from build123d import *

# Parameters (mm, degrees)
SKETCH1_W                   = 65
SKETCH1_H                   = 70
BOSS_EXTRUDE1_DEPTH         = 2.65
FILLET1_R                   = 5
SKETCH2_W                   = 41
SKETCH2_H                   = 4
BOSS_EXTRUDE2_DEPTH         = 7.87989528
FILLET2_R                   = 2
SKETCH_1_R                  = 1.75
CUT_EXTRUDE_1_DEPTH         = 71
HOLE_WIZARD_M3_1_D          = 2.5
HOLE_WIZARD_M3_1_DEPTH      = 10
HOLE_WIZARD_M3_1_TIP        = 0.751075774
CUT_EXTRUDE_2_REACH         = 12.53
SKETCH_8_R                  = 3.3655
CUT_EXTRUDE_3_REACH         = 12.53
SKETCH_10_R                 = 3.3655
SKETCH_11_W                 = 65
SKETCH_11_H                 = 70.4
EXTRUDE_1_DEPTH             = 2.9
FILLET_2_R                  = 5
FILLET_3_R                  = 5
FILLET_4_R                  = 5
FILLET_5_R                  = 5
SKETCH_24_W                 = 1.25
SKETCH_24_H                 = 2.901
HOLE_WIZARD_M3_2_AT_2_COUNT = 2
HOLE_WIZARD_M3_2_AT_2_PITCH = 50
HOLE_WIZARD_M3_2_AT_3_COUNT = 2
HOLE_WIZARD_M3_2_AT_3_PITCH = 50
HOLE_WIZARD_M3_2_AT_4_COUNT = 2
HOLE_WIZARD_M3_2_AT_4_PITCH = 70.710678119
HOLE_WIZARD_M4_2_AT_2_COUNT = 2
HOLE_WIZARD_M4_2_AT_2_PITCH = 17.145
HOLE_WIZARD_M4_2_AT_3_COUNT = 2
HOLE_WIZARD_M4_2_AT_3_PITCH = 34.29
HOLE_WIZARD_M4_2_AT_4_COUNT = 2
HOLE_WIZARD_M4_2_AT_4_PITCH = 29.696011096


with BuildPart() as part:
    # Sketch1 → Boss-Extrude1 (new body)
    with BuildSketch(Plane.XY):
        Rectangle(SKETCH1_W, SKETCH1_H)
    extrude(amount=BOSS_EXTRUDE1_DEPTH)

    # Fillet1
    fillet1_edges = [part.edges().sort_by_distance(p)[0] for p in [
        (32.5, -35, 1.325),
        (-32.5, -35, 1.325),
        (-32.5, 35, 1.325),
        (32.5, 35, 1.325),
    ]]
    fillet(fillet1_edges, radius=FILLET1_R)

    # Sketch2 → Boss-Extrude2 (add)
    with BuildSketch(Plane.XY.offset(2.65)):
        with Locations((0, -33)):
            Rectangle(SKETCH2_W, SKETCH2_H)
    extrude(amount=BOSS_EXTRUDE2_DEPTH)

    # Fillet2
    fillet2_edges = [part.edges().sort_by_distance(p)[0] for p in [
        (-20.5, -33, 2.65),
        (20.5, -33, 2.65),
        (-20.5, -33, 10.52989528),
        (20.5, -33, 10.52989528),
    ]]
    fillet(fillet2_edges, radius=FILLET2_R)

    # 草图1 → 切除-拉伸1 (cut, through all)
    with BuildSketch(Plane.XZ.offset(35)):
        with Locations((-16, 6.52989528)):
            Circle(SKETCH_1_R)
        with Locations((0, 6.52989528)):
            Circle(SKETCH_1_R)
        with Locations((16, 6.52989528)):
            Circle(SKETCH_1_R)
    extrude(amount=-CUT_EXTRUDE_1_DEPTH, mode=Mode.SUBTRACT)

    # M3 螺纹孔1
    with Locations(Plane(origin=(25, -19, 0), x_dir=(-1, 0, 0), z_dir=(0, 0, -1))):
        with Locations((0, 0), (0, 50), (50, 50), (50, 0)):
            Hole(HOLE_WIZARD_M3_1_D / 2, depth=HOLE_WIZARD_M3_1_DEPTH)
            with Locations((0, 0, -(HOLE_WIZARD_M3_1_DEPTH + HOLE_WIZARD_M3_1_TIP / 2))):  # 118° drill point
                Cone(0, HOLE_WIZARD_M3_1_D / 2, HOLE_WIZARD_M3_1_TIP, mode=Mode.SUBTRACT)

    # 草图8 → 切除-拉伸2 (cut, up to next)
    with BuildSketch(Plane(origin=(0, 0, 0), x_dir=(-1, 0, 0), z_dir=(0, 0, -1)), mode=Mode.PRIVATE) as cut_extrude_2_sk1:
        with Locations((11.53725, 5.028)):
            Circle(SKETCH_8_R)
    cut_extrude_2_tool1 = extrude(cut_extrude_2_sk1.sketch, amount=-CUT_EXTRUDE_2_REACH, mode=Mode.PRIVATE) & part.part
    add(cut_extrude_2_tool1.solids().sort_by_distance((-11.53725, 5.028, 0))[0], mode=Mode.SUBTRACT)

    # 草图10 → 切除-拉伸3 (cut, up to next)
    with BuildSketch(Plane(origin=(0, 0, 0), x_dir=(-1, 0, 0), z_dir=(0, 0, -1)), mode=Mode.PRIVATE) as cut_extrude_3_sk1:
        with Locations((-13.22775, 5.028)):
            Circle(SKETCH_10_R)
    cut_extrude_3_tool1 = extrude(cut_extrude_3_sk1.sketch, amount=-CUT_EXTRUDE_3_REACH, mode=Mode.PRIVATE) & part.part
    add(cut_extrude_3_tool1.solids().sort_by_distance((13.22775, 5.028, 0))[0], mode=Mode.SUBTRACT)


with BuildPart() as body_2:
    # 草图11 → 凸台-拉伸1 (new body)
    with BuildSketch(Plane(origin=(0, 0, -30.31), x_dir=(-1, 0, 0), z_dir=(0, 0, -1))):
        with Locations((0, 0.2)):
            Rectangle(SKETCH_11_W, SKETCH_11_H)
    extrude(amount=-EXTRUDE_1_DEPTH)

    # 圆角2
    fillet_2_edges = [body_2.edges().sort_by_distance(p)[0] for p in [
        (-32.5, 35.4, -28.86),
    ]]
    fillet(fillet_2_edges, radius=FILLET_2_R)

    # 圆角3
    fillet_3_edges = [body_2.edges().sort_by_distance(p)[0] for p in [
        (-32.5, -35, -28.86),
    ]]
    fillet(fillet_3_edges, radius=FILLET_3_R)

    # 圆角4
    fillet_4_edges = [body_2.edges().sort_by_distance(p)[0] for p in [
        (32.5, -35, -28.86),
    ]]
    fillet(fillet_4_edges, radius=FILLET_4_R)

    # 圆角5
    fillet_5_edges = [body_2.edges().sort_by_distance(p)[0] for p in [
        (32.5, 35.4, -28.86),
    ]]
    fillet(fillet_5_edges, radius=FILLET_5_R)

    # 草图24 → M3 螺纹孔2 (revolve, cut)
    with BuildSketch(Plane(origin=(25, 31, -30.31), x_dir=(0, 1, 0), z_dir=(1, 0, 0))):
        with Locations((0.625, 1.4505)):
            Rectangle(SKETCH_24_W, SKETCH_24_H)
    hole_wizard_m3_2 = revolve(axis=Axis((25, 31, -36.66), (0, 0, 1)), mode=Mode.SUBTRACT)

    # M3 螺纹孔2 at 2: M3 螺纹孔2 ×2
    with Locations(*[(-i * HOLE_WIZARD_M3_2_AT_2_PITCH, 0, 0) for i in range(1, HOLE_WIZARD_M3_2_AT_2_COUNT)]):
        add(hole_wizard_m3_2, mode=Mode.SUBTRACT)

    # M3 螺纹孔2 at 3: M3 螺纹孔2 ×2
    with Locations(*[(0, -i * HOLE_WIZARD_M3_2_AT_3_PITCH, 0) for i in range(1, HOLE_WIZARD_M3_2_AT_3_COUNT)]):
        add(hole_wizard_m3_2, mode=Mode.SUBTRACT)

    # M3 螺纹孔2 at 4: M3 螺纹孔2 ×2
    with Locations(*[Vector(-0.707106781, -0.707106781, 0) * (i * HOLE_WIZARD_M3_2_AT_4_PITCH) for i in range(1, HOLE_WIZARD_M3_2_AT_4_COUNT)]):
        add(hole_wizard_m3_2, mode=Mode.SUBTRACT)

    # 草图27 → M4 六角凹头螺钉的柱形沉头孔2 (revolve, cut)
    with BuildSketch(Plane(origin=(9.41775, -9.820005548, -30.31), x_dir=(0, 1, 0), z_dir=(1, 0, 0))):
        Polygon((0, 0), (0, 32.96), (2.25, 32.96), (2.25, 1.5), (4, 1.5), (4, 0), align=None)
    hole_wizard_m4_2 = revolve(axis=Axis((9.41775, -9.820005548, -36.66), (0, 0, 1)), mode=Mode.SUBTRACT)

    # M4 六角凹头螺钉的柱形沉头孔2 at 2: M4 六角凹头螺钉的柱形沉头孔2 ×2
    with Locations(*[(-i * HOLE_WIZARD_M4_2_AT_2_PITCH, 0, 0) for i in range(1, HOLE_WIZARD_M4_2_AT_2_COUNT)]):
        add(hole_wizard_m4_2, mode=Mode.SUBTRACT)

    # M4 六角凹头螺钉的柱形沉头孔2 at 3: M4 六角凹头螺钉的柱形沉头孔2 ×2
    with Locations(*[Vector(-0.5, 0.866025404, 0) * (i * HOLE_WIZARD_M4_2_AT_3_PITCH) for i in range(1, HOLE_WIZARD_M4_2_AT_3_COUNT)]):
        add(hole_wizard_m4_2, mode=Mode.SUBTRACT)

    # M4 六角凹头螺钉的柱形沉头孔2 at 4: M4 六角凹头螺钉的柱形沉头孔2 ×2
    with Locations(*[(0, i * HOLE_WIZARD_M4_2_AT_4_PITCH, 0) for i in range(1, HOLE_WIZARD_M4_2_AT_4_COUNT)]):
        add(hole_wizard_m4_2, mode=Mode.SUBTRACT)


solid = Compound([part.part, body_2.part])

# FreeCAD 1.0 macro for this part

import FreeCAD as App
import Part
import Sketcher
from FreeCAD import Vector
Q = App.Units.Quantity


def edges_at(feature, points):
    """Names of the edges that pass closest to the given points."""
    edges = feature.Shape.Edges
    near = lambda p: min(range(len(edges)), key=lambda i: edges[i].distToShape(Part.Vertex(*p))[0])
    return sorted({f"Edge{near(p) + 1}" for p in points})

doc = App.newDocument("Part")
body = doc.addObject("PartDesign::Body", "Body")

# Sketch on XY plane
sketch1 = body.newObject("Sketcher::SketchObject", "Sketch")
sketch1.AttachmentSupport = (doc.getObject("XY_Plane"), [""])
sketch1.MapMode = "FlatFace"
sketch1.addGeometry([
    Part.LineSegment(Vector(-32, 35, 0), Vector(-32, -35, 0)),
    Part.LineSegment(Vector(-32, -35, 0), Vector(32, -35, 0)),
    Part.LineSegment(Vector(32, -35, 0), Vector(32, 35, 0)),
    Part.LineSegment(Vector(32, 35, 0), Vector(-32, 35, 0)),
], False)
sketch1.addConstraint([
    Sketcher.Constraint("Coincident", 0, 2, 1, 1),
    Sketcher.Constraint("Coincident", 1, 2, 2, 1),
    Sketcher.Constraint("Coincident", 2, 2, 3, 1),
    Sketcher.Constraint("Coincident", 3, 2, 0, 1),
    Sketcher.Constraint("Vertical", 0),
    Sketcher.Constraint("Horizontal", 1),
    Sketcher.Constraint("Vertical", 2),
    Sketcher.Constraint("Horizontal", 3),
    Sketcher.Constraint("Symmetric", 0, 2, 2, 2, -1, 1),
    Sketcher.Constraint("DistanceX", 1, 1, 1, 2, Q("65 mm")),
    Sketcher.Constraint("DistanceY", 0, 2, 0, 1, Q("70 mm")),
])
pad1 = body.newObject("PartDesign::Pad", "Pad")
pad1.Profile = sketch1
pad1.Length = 2.65
doc.recompute()

fillet = body.newObject("PartDesign::Fillet", "Fillet")
fillet.Base = (pad1, edges_at(pad1, [
    (32.5, -35, 1.325),
    (-32.5, -35, 1.325),
    (-32.5, 35, 1.325),
    (32.5, 35, 1.325),
]))
fillet.Radius = 5

# Sketch on XY plane
sketch2 = body.newObject("Sketcher::SketchObject", "Sketch001")
sketch2.AttachmentSupport = (doc.getObject("XY_Plane"), [""])
sketch2.MapMode = "FlatFace"
sketch2.AttachmentOffset = App.Placement(Vector(0, 0, 2.65), App.Rotation())
sketch2.addGeometry([
    Part.LineSegment(Vector(-20.5, -31, 0), Vector(-20.5, -35, 0)),
    Part.LineSegment(Vector(-20.5, -35, 0), Vector(20.5, -35, 0)),
    Part.LineSegment(Vector(20.5, -35, 0), Vector(20.5, -31, 0)),
    Part.LineSegment(Vector(20.5, -31, 0), Vector(-20.5, -31, 0)),
], False)
sketch2.addConstraint([
    Sketcher.Constraint("Coincident", 0, 2, 1, 1),
    Sketcher.Constraint("Coincident", 1, 2, 2, 1),
    Sketcher.Constraint("Coincident", 2, 2, 3, 1),
    Sketcher.Constraint("Coincident", 3, 2, 0, 1),
    Sketcher.Constraint("Vertical", 0),
    Sketcher.Constraint("Horizontal", 1),
    Sketcher.Constraint("Vertical", 2),
    Sketcher.Constraint("Horizontal", 3),
    Sketcher.Constraint("DistanceX", 1, 1, 1, 2, Q("41 mm")),
    Sketcher.Constraint("DistanceY", 0, 2, 0, 1, Q("4 mm")),
    Sketcher.Constraint("DistanceY", 0, 2, -1, 1, Q("35 mm")),
    Sketcher.Constraint("DistanceX", 0, 2, -1, 1, Q("20.5 mm")),
])
pad2 = body.newObject("PartDesign::Pad", "Pad001")
pad2.Profile = sketch2
pad2.Length = 7.879895
doc.recompute()

fillet2 = body.newObject("PartDesign::Fillet", "Fillet001")
fillet2.Base = (pad2, edges_at(pad2, [
    (-20.5, -33, 2.65),
    (20.5, -33, 2.65),
    (-20.5, -33, 10.53),
    (20.5, -33, 10.53),
]))
fillet2.Radius = 2

# Sketch on XZ plane
sketch3 = body.newObject("Sketcher::SketchObject", "Sketch002")
sketch3.AttachmentSupport = (doc.getObject("XZ_Plane"), [""])
sketch3.MapMode = "FlatFace"
sketch3.AttachmentOffset = App.Placement(Vector(0, 0, 35), App.Rotation())
sketch3.addGeometry([
    Part.Circle(Vector(-16, 6.5, 0), Vector(0, 0, 1), 1.8),
    Part.Circle(Vector(0, 6.5, 0), Vector(0, 0, 1), 1.8),
    Part.Circle(Vector(16, 6.5, 0), Vector(0, 0, 1), 1.8),
], False)
sketch3.addConstraint([
    Sketcher.Constraint("Equal", 0, 1),
    Sketcher.Constraint("Equal", 1, 2),
    Sketcher.Constraint("Symmetric", 0, 3, 2, 3, -2),
    Sketcher.Constraint("PointOnObject", 1, 3, -2),
    Sketcher.Constraint("Horizontal", 0, 3, 1, 3),
    Sketcher.Constraint("Diameter", 0, Q("3.5 mm")),
    Sketcher.Constraint("DistanceX", 0, 3, -1, 1, Q("16 mm")),
    Sketcher.Constraint("DistanceY", -1, 1, 0, 3, Q("6.529895 mm")),
])
pocket1 = body.newObject("PartDesign::Pocket", "Pocket")
pocket1.Profile = sketch3
pocket1.Type = "ThroughAll"

# Sketch on XY plane
sketch4 = body.newObject("Sketcher::SketchObject", "Sketch003")
sketch4.AttachmentSupport = (doc.getObject("XY_Plane"), [""])
sketch4.MapMode = "FlatFace"
sketch4.addGeometry([
    Part.Circle(Vector(25, -19, 0), Vector(0, 0, 1), 1.2),
    Part.Circle(Vector(25, 31, 0), Vector(0, 0, 1), 1.2),
    Part.Circle(Vector(-25, 31, 0), Vector(0, 0, 1), 1.2),
    Part.Circle(Vector(-25, -19, 0), Vector(0, 0, 1), 1.2),
], False)
sketch4.addConstraint([
    Sketcher.Constraint("Equal", 0, 1),
    Sketcher.Constraint("Equal", 1, 2),
    Sketcher.Constraint("Equal", 2, 3),
    Sketcher.Constraint("Symmetric", 1, 3, 2, 3, -2),
    Sketcher.Constraint("Symmetric", 0, 3, 3, 3, -2),
    Sketcher.Constraint("Vertical", 0, 3, 1, 3),
    Sketcher.Constraint("Diameter", 0, Q("2.5 mm")),
    Sketcher.Constraint("DistanceX", -1, 1, 0, 3, Q("25 mm")),
    Sketcher.Constraint("DistanceY", 0, 3, -1, 1, Q("19 mm")),
    Sketcher.Constraint("DistanceY", -1, 1, 1, 3, Q("31 mm")),
])
doc.recompute()
hole = body.newObject("PartDesign::Hole", "Hole")
hole.Profile = sketch4
hole.ThreadType = "None"
hole.Diameter = 2.5
hole.DepthType = "Dimension"
hole.Depth = 10
hole.DrillPoint = "Angled"
hole.DrillPointAngle = 118
hole.Reversed = True

# Sketch on XY plane
sketch5 = body.newObject("Sketcher::SketchObject", "Sketch004")
sketch5.AttachmentSupport = (doc.getObject("XY_Plane"), [""])
sketch5.MapMode = "FlatFace"
sketch5.addGeometry(Part.Circle(Vector(-11.5, 5, 0), Vector(0, 0, 1), 3.4), False)
sketch5.addConstraint([
    Sketcher.Constraint("Diameter", 0, Q("6.731 mm")),
    Sketcher.Constraint("DistanceY", -1, 1, 0, 3, Q("5.028 mm")),
    Sketcher.Constraint("DistanceX", 0, 3, -1, 1, Q("11.53725 mm")),
])
pocket2 = body.newObject("PartDesign::Pocket", "Pocket001")
pocket2.Profile = sketch5
pocket2.Type = "UpToFirst"
pocket2.Reversed = True

# Sketch on XY plane
sketch6 = body.newObject("Sketcher::SketchObject", "Sketch005")
sketch6.AttachmentSupport = (doc.getObject("XY_Plane"), [""])
sketch6.MapMode = "FlatFace"
sketch6.addGeometry(Part.Circle(Vector(13.2, 5, 0), Vector(0, 0, 1), 3.4), False)
sketch6.addConstraint([
    Sketcher.Constraint("Diameter", 0, Q("6.731 mm")),
    Sketcher.Constraint("DistanceY", -1, 1, 0, 3, Q("5.028 mm")),
    Sketcher.Constraint("DistanceX", -1, 1, 0, 3, Q("13.22775 mm")),
])
pocket3 = body.newObject("PartDesign::Pocket", "Pocket002")
pocket3.Profile = sketch6
pocket3.Type = "UpToFirst"
pocket3.Reversed = True
body2 = doc.addObject("PartDesign::Body", "Body001")

# Sketch on XY plane
sketch7 = body2.newObject("Sketcher::SketchObject", "Sketch006")
sketch7.AttachmentSupport = (doc.getObject("XY_Plane001"), [""])
sketch7.MapMode = "FlatFace"
sketch7.AttachmentOffset = App.Placement(Vector(0, 0, -30.31), App.Rotation())
sketch7.addGeometry([
    Part.LineSegment(Vector(32, 35, 0), Vector(32, -35, 0)),
    Part.LineSegment(Vector(32, -35, 0), Vector(-32, -35, 0)),
    Part.LineSegment(Vector(-32, -35, 0), Vector(-32, 35, 0)),
    Part.LineSegment(Vector(-32, 35, 0), Vector(32, 35, 0)),
], False)
sketch7.addConstraint([
    Sketcher.Constraint("Coincident", 0, 2, 1, 1),
    Sketcher.Constraint("Coincident", 1, 2, 2, 1),
    Sketcher.Constraint("Coincident", 2, 2, 3, 1),
    Sketcher.Constraint("Coincident", 3, 2, 0, 1),
    Sketcher.Constraint("Vertical", 0),
    Sketcher.Constraint("Horizontal", 1),
    Sketcher.Constraint("Vertical", 2),
    Sketcher.Constraint("Horizontal", 3),
    Sketcher.Constraint("DistanceX", 1, 2, 1, 1, Q("65 mm")),
    Sketcher.Constraint("DistanceY", 0, 2, 0, 1, Q("70.4 mm")),
    Sketcher.Constraint("DistanceY", 0, 2, -1, 1, Q("35 mm")),
    Sketcher.Constraint("DistanceX", -1, 1, 0, 2, Q("32.5 mm")),
])
pad3 = body2.newObject("PartDesign::Pad", "Pad002")
pad3.Profile = sketch7
pad3.Length = 2.9
doc.recompute()

fillet3 = body2.newObject("PartDesign::Fillet", "Fillet002")
fillet3.Base = (pad3, edges_at(pad3, [(-32.5, 35.4, -28.86)]))
fillet3.Radius = 5
doc.recompute()

fillet4 = body2.newObject("PartDesign::Fillet", "Fillet003")
fillet4.Base = (fillet3, edges_at(fillet3, [(-32.5, -35, -28.86)]))
fillet4.Radius = 5
doc.recompute()

fillet5 = body2.newObject("PartDesign::Fillet", "Fillet004")
fillet5.Base = (fillet4, edges_at(fillet4, [(32.5, -35, -28.86)]))
fillet5.Radius = 5
doc.recompute()

fillet6 = body2.newObject("PartDesign::Fillet", "Fillet005")
fillet6.Base = (fillet5, edges_at(fillet5, [(32.5, 35.4, -28.86)]))
fillet6.Radius = 5

# Sketch on YZ plane
sketch8 = body2.newObject("Sketcher::SketchObject", "Sketch007")
sketch8.AttachmentSupport = (doc.getObject("YZ_Plane001"), [""])
sketch8.MapMode = "FlatFace"
sketch8.AttachmentOffset = App.Placement(Vector(0, 0, 25), App.Rotation())
sketch8.addGeometry([
    Part.LineSegment(Vector(31, -27.4, 0), Vector(31, -30.3, 0)),
    Part.LineSegment(Vector(31, -30.3, 0), Vector(32.2, -30.3, 0)),
    Part.LineSegment(Vector(32.2, -30.3, 0), Vector(32.2, -27.4, 0)),
    Part.LineSegment(Vector(32.2, -27.4, 0), Vector(31, -27.4, 0)),
], False)
sketch8.addGeometry(Part.LineSegment(Vector(31, -30.3, 0), Vector(31, -27.4, 0)), True)  # axis
sketch8.addConstraint([
    Sketcher.Constraint("Coincident", 0, 2, 1, 1),
    Sketcher.Constraint("Coincident", 1, 2, 2, 1),
    Sketcher.Constraint("Coincident", 2, 2, 3, 1),
    Sketcher.Constraint("Coincident", 3, 2, 0, 1),
    Sketcher.Constraint("Vertical", 0),
    Sketcher.Constraint("Horizontal", 1),
    Sketcher.Constraint("Vertical", 2),
    Sketcher.Constraint("Horizontal", 3),
    Sketcher.Constraint("Vertical", 4),
    Sketcher.Constraint("Coincident", 4, 1, 0, 2),
    Sketcher.Constraint("Horizontal", 2, 2, 4, 2),
    Sketcher.Constraint("DistanceX", -1, 1, 0, 2, Q("31 mm")),
    Sketcher.Constraint("DistanceX", 1, 1, 1, 2, Q("1.25 mm")),
    Sketcher.Constraint("DistanceY", 0, 2, 0, 1, Q("2.901 mm")),
    Sketcher.Constraint("DistanceY", 0, 2, -1, 1, Q("30.31 mm")),
])
groove = body2.newObject("PartDesign::Groove", "Groove")
groove.Profile = sketch8
groove.ReferenceAxis = (sketch8, ["Axis0"])
groove.Angle = 360
doc.recompute()

linearpattern = body2.newObject("PartDesign::LinearPattern", "LinearPattern")
linearpattern.Originals = [groove]
linearpattern.Direction = (doc.getObject("X_Axis001"), [""])
linearpattern.Mode = "offset"
linearpattern.Offset = 50
linearpattern.Occurrences = 2
linearpattern.Reversed = True
body2.Tip = linearpattern
doc.recompute()

linearpattern2 = body2.newObject("PartDesign::LinearPattern", "LinearPattern001")
linearpattern2.Originals = [groove]
linearpattern2.Direction = (doc.getObject("Y_Axis001"), [""])
linearpattern2.Mode = "offset"
linearpattern2.Offset = 50
linearpattern2.Occurrences = 2
linearpattern2.Reversed = True
body2.Tip = linearpattern2
doc.recompute()

datumline = body2.newObject("PartDesign::Line", "DatumLine")
datumline.Placement = App.Placement(Vector(0, 0, 0), App.Rotation(Vector(0, 0, 1), Vector(-0.707106781, -0.707106781, 0)))
linearpattern3 = body2.newObject("PartDesign::LinearPattern", "LinearPattern002")
linearpattern3.Originals = [groove]
linearpattern3.Direction = (datumline, [""])
linearpattern3.Mode = "offset"
linearpattern3.Offset = 70.710678
linearpattern3.Occurrences = 2
body2.Tip = linearpattern3

# Sketch on YZ plane
sketch9 = body2.newObject("Sketcher::SketchObject", "Sketch008")
sketch9.AttachmentSupport = (doc.getObject("YZ_Plane001"), [""])
sketch9.MapMode = "FlatFace"
sketch9.AttachmentOffset = App.Placement(Vector(0, 0, 9.41775), App.Rotation())
sketch9.addGeometry([
    Part.LineSegment(Vector(-9.8, 2.6, 0), Vector(-9.8, -30.3, 0)),  # 0
    Part.LineSegment(Vector(-9.8, -30.3, 0), Vector(-5.8, -30.3, 0)),  # 1
    Part.LineSegment(Vector(-5.8, -30.3, 0), Vector(-5.8, -28.8, 0)),  # 2
    Part.LineSegment(Vector(-5.8, -28.8, 0), Vector(-7.6, -28.8, 0)),  # 3
    Part.LineSegment(Vector(-7.6, -28.8, 0), Vector(-7.6, 2.6, 0)),  # 4
    Part.LineSegment(Vector(-7.6, 2.6, 0), Vector(-9.8, 2.6, 0)),  # 5
], False)
sketch9.addGeometry(Part.LineSegment(Vector(-9.8, -30.3, 0), Vector(-9.8, 2.6, 0)), True)  # axis
sketch9.addConstraint([
    Sketcher.Constraint("Coincident", 0, 2, 1, 1),
    Sketcher.Constraint("Coincident", 1, 2, 2, 1),
    Sketcher.Constraint("Coincident", 2, 2, 3, 1),
    Sketcher.Constraint("Coincident", 3, 2, 4, 1),
    Sketcher.Constraint("Coincident", 4, 2, 5, 1),
    Sketcher.Constraint("Coincident", 5, 2, 0, 1),
    Sketcher.Constraint("Vertical", 0),
    Sketcher.Constraint("Horizontal", 1),
    Sketcher.Constraint("Vertical", 2),
    Sketcher.Constraint("Horizontal", 3),
    Sketcher.Constraint("Vertical", 4),
    Sketcher.Constraint("Horizontal", 5),
    Sketcher.Constraint("Vertical", 6),
    Sketcher.Constraint("Coincident", 6, 1, 0, 2),
    Sketcher.Constraint("Horizontal", 4, 2, 6, 2),
    Sketcher.Constraint("DistanceX", 1, 1, 1, 2, Q("4 mm")),
    Sketcher.Constraint("DistanceY", 2, 1, 2, 2, Q("1.5 mm")),
    Sketcher.Constraint("DistanceX", 3, 2, 3, 1, Q("1.75 mm")),
    Sketcher.Constraint("DistanceY", 0, 2, 0, 1, Q("32.96 mm")),
    Sketcher.Constraint("DistanceY", 0, 2, -1, 1, Q("30.31 mm")),
    Sketcher.Constraint("DistanceX", 0, 2, -1, 1, Q("9.820006 mm")),
])
groove2 = body2.newObject("PartDesign::Groove", "Groove001")
groove2.Profile = sketch9
groove2.ReferenceAxis = (sketch9, ["Axis0"])
groove2.Angle = 360
doc.recompute()

linearpattern4 = body2.newObject("PartDesign::LinearPattern", "LinearPattern003")
linearpattern4.Originals = [groove2]
linearpattern4.Direction = (doc.getObject("X_Axis001"), [""])
linearpattern4.Mode = "offset"
linearpattern4.Offset = 17.145
linearpattern4.Occurrences = 2
linearpattern4.Reversed = True
body2.Tip = linearpattern4
doc.recompute()

datumline2 = body2.newObject("PartDesign::Line", "DatumLine001")
datumline2.Placement = App.Placement(Vector(0, 0, 0), App.Rotation(Vector(0, 0, 1), Vector(-0.5, 0.866025404, 0)))
linearpattern5 = body2.newObject("PartDesign::LinearPattern", "LinearPattern004")
linearpattern5.Originals = [groove2]
linearpattern5.Direction = (datumline2, [""])
linearpattern5.Mode = "offset"
linearpattern5.Offset = 34.29
linearpattern5.Occurrences = 2
body2.Tip = linearpattern5
doc.recompute()

linearpattern6 = body2.newObject("PartDesign::LinearPattern", "LinearPattern005")
linearpattern6.Originals = [groove2]
linearpattern6.Direction = (doc.getObject("Y_Axis001"), [""])
linearpattern6.Mode = "offset"
linearpattern6.Offset = 29.696011
linearpattern6.Occurrences = 2
body2.Tip = linearpattern6

doc.recompute()
